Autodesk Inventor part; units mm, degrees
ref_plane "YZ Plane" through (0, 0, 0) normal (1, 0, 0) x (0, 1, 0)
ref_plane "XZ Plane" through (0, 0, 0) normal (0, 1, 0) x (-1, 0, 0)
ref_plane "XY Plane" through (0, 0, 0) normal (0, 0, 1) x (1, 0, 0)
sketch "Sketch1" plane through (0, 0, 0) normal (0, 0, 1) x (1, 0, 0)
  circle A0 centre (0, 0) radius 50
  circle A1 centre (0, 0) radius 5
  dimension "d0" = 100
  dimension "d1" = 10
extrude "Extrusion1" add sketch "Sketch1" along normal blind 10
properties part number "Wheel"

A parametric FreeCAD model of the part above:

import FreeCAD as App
import Part
import Sketcher

V = App.Vector
Q = App.Units.Quantity

doc = App.newDocument("Part")
body = doc.addObject("PartDesign::Body", "Body")

# Sketch on XY plane
sketch1 = doc.addObject("Sketcher::SketchObject", "Sketch")
body.addObject(sketch1)
sketch1.AttachmentSupport = (doc.XY_Plane, [""])
sketch1.MapMode = "FlatFace"
sketch1.addGeometry([
    Part.Circle(V(0, 0, 0), V(0, 0, 1), 50),
    Part.Circle(V(0, 0, 0), V(0, 0, 1), 5),
], False)
sketch1.addConstraint([
    Sketcher.Constraint("Coincident", 0, 3, -1, 1),
    Sketcher.Constraint("Coincident", 1, 3, -1, 1),
    Sketcher.Constraint("Diameter", 0, Q("3.937 in")),
    Sketcher.Constraint("Diameter", 1, Q("0.3937 in")),
])
pad1 = doc.addObject("PartDesign::Pad", "Pad")
body.addObject(pad1)
pad1.Profile = sketch1
pad1.Length = Q("0.3937008 in")

doc.recompute()
